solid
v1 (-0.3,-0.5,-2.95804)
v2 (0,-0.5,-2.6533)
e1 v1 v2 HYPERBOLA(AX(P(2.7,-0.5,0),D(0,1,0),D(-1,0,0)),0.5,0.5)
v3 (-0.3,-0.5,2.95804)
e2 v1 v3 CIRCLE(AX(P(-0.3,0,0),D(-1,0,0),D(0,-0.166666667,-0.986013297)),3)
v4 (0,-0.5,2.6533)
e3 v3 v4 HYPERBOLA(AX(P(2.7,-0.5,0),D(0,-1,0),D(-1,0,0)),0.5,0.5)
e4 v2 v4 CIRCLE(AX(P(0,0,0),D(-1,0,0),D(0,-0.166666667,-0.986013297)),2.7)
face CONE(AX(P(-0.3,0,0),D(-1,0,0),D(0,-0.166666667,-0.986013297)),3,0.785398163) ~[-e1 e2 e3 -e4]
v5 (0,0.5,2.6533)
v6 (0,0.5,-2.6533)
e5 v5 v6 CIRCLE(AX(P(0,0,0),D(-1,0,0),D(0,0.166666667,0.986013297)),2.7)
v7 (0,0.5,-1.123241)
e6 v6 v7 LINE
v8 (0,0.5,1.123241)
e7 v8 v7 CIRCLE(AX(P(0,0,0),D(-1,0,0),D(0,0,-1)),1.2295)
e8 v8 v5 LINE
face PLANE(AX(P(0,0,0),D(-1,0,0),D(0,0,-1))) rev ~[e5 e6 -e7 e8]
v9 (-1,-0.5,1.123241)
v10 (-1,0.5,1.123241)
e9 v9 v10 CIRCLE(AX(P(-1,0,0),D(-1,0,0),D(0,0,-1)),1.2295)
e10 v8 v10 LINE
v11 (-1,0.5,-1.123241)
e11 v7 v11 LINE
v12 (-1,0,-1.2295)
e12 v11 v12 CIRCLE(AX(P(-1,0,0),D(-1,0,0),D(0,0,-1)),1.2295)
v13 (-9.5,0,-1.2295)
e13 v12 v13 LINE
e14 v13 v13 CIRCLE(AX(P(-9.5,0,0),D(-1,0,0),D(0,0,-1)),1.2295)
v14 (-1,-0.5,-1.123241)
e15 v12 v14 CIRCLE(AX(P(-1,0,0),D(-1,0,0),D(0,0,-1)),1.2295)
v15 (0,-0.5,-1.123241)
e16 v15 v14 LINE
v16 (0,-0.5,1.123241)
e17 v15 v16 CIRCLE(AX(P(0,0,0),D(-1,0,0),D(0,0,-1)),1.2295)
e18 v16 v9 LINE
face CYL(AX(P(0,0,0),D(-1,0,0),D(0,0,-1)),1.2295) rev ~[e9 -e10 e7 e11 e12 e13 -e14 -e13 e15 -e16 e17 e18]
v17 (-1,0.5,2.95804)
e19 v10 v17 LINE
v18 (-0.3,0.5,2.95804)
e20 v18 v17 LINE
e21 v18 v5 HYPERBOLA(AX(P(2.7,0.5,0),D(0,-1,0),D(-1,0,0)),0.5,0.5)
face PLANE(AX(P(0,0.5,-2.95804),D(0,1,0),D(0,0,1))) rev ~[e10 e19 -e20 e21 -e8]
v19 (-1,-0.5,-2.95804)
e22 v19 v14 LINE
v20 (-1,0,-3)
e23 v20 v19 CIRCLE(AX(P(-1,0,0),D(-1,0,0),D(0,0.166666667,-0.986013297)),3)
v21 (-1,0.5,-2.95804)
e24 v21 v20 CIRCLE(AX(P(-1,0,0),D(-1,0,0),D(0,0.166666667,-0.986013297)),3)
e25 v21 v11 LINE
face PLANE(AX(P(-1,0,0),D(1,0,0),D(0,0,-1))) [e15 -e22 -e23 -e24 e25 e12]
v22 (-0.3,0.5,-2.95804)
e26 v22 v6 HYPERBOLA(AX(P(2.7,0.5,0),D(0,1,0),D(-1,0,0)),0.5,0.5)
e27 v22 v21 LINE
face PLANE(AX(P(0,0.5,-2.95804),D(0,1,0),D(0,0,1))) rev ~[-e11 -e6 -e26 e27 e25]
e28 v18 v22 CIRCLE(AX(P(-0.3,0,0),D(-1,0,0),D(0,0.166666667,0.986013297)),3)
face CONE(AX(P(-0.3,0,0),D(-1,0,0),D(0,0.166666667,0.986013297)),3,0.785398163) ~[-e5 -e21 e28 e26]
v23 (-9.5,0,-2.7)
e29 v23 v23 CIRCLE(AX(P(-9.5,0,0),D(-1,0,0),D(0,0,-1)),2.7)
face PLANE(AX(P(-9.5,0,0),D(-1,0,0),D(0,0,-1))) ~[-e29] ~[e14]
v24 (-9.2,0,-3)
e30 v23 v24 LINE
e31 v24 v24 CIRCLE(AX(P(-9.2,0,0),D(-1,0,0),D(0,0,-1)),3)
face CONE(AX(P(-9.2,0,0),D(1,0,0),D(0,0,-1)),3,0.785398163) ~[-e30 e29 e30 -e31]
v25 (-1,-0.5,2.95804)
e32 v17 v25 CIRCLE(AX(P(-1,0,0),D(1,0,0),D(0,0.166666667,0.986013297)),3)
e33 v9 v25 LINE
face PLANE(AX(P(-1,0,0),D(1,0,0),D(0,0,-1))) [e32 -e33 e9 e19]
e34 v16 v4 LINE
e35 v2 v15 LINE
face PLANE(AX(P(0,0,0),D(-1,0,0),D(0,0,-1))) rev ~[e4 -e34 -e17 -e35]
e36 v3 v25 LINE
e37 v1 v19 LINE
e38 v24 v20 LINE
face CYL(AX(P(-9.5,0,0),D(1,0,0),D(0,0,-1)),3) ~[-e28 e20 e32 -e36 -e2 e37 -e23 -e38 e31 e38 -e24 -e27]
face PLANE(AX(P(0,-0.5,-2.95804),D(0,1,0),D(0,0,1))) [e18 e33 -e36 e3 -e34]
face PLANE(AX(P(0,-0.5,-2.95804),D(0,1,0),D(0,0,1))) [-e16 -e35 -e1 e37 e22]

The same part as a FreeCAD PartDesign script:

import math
import FreeCAD as App
import Part
import Sketcher
from FreeCAD import Vector


def edges_at(feature, points):
    """Names of the edges that pass closest to the given points."""
    edges = feature.Shape.Edges
    near = lambda p: min(range(len(edges)), key=lambda i: edges[i].distToShape(Part.Vertex(*p))[0])
    return sorted({f"Edge{near(p) + 1}" for p in points})


def add_polygon(sketch, points):
    """Adds a closed chain of lines whose ends are joined by coincident constraints."""
    first, n = sketch.GeometryCount, len(points)
    for a, b in zip(points, points[1:] + points[:1]):
        sketch.addGeometry(Part.LineSegment(App.Vector(*a, 0), App.Vector(*b, 0)), False)
    for i in range(n):
        sketch.addConstraint(Sketcher.Constraint("Coincident", first + i, 2, first + (i + 1) % n, 1))

doc = App.newDocument("Part")
body = doc.addObject("PartDesign::Body", "Body")

sketch1 = doc.addObject("Sketcher::SketchObject", "Sketch")
body.addObject(sketch1)
sketch1.AttachmentSupport = (doc.XZ_Plane, [""])
sketch1.MapMode = "FlatFace"
add_polygon(sketch1, [(-9.5, 0), (0, 0), (0, -3), (-9.5, -3)])
sketch1.addConstraint(Sketcher.Constraint("Horizontal", 0))
sketch1.addConstraint(Sketcher.Constraint("Vertical", 1))
sketch1.addConstraint(Sketcher.Constraint("Horizontal", 2))
sketch1.addConstraint(Sketcher.Constraint("Vertical", 3))
sketch1.addConstraint(Sketcher.Constraint("Coincident", 0, 2, -1, 1))
sketch1.addConstraint(Sketcher.Constraint("DistanceY", 1, 2, 1, 1, 3.0))
sketch1.addConstraint(Sketcher.Constraint("DistanceX", 0, 1, 0, 2, 9.5))
revolution = doc.addObject("PartDesign::Revolution", "Revolution")
body.addObject(revolution)
revolution.Profile = sketch1
revolution.ReferenceAxis = (sketch1, ["H_Axis"])
revolution.Angle = 360

sketch2 = doc.addObject("Sketcher::SketchObject", "Sketch001")
body.addObject(sketch2)
sketch2.AttachmentSupport = (doc.YZ_Plane, [""])
sketch2.MapMode = "FlatFace"
sketch2.addGeometry(Part.Circle(Vector(0, 0, 0), Vector(0, 0, 1), 1.2), False)
sketch2.addConstraint(Sketcher.Constraint("Coincident", 0, 3, -1, 1))
sketch2.addConstraint(Sketcher.Constraint("Diameter", 0, 2.459))
doc.recompute()
hole = doc.addObject("PartDesign::Hole", "Hole")
body.addObject(hole)
hole.Profile = sketch2
hole.ThreadType = "None"
hole.Diameter = 2.459
hole.DepthType = "ThroughAll"

sketch3 = doc.addObject("Sketcher::SketchObject", "Sketch002")
body.addObject(sketch3)
sketch3.AttachmentSupport = (doc.YZ_Plane, [""])
sketch3.MapMode = "FlatFace"
sketch3.addGeometry(Part.ArcOfCircle(Part.Circle(Vector(0, 0, 0), Vector(0, 0, 1), 3), math.radians(80.41), math.radians(99.59)), False)
sketch3.addGeometry(Part.LineSegment(Vector(-0.5, 3, 0), Vector(-0.5, -3, 0)), False)
sketch3.addGeometry(Part.ArcOfCircle(Part.Circle(Vector(0, 0, 0), Vector(0, 0, 1), 3), math.radians(-99.59), math.radians(-80.41)), False)
sketch3.addGeometry(Part.LineSegment(Vector(0.5, -3, 0), Vector(0.5, 3, 0)), False)
sketch3.addConstraint(Sketcher.Constraint("Coincident", 0, 2, 1, 1))
sketch3.addConstraint(Sketcher.Constraint("Coincident", 1, 2, 2, 1))
sketch3.addConstraint(Sketcher.Constraint("Coincident", 2, 2, 3, 1))
sketch3.addConstraint(Sketcher.Constraint("Coincident", 3, 2, 0, 1))
sketch3.addConstraint(Sketcher.Constraint("Vertical", 1))
sketch3.addConstraint(Sketcher.Constraint("Vertical", 3))
sketch3.addConstraint(Sketcher.Constraint("Coincident", 0, 3, -1, 1))
sketch3.addConstraint(Sketcher.Constraint("Coincident", 2, 3, -1, 1))
sketch3.addConstraint(Sketcher.Constraint("Equal", 0, 2))
sketch3.addConstraint(Sketcher.Constraint("Horizontal", 1, 2, 2, 2))
sketch3.addConstraint(Sketcher.Constraint("Radius", 0, 3.0))
sketch3.addConstraint(Sketcher.Constraint("DistanceX", 0, 2, -1, 1, 0.5))
pocket1 = doc.addObject("PartDesign::Pocket", "Pocket")
body.addObject(pocket1)
pocket1.Profile = sketch3
pocket1.Length = 1
doc.recompute()

chamfer = doc.addObject("PartDesign::Chamfer", "Chamfer")
body.addObject(chamfer)
chamfer.Base = (pocket1, edges_at(pocket1, [(-9.5, 0, 3), (0, 3, 0), (0, -3, 0)]))
chamfer.Size = 0.3

doc.recompute()
